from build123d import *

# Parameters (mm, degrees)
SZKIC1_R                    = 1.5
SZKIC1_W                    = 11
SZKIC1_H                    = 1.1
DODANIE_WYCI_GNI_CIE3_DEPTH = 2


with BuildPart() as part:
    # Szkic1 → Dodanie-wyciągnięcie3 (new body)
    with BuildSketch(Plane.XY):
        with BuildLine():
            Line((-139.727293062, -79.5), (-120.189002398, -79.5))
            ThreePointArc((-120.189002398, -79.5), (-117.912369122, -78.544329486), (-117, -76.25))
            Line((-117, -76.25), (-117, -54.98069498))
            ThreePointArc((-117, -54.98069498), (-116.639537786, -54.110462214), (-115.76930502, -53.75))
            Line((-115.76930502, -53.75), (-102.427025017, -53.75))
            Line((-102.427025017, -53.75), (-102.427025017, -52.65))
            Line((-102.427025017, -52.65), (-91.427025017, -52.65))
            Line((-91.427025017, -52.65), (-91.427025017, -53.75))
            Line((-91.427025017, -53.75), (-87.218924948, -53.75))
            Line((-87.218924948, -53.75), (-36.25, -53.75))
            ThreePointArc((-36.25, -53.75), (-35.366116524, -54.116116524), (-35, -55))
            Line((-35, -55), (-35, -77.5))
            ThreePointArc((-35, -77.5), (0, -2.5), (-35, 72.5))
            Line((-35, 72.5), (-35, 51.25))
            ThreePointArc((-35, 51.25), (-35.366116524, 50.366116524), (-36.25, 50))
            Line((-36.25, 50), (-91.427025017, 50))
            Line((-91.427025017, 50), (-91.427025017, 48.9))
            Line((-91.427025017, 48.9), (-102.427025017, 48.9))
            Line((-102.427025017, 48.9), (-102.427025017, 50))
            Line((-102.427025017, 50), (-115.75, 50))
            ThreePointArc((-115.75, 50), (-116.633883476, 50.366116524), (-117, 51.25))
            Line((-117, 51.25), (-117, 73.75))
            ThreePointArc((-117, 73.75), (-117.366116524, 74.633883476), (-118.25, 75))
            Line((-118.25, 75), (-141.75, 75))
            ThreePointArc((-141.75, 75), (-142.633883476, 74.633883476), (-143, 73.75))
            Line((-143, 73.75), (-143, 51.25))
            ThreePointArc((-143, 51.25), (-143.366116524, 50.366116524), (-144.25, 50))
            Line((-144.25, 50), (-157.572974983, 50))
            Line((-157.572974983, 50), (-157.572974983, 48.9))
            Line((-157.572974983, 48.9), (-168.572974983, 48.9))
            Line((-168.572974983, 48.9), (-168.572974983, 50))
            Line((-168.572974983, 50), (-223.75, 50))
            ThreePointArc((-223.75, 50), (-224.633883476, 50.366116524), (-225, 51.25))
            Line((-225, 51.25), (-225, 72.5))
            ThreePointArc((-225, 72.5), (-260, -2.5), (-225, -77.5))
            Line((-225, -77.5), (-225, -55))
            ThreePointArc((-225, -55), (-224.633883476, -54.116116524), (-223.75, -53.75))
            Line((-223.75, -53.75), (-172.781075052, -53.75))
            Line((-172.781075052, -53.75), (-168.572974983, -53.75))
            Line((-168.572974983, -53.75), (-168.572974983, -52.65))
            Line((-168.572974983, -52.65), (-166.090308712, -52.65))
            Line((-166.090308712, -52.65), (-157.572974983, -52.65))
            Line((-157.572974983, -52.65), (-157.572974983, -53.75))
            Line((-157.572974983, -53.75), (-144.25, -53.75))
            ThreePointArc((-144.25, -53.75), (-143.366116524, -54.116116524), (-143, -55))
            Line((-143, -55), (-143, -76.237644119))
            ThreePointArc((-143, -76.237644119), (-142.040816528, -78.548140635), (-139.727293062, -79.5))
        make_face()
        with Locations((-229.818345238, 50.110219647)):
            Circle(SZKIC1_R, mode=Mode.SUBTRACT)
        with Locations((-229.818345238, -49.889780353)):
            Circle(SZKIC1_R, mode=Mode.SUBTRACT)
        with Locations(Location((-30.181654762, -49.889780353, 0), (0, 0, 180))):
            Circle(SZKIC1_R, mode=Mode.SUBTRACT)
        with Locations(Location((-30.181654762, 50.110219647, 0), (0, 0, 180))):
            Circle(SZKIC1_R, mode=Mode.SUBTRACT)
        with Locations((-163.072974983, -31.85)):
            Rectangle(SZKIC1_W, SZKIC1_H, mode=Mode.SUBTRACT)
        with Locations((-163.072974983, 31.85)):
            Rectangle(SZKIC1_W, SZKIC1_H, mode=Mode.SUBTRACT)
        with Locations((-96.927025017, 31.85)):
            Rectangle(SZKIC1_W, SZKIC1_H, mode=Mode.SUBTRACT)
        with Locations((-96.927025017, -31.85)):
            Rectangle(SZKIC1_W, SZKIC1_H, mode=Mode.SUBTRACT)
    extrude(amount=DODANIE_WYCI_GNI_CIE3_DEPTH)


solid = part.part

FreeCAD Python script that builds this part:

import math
import FreeCAD as App
import Part
import Sketcher

V = App.Vector
Q = App.Units.Quantity


def add_polygon(sketch, points):
    """Adds a closed chain of lines whose ends are joined by coincident constraints."""
    first, n = sketch.GeometryCount, len(points)
    for a, b in zip(points, points[1:] + points[:1]):
        sketch.addGeometry(Part.LineSegment(App.Vector(*a, 0), App.Vector(*b, 0)), False)
    for i in range(n):
        sketch.addConstraint(Sketcher.Constraint("Coincident", first + i, 2, first + (i + 1) % n, 1))

doc = App.newDocument("Part")
body = doc.addObject("PartDesign::Body", "Body")

sketch1 = body.newObject("Sketcher::SketchObject", "Sketch")
sketch1.AttachmentSupport = (doc.getObject("XY_Plane"), [""])
sketch1.MapMode = "FlatFace"
sketch1.addGeometry(Part.LineSegment(V(-139.7, -79.5, 0), V(-120.2, -79.5, 0)), False)
sketch1.addGeometry(Part.ArcOfCircle(Part.Circle(V(-120.2, -76.3, 0), V(0, 0, 1), 3.2), math.radians(-90), math.radians(1)), False)
sketch1.addGeometry(Part.LineSegment(V(-117, -76.2, 0), V(-117, -55, 0)), False)
sketch1.addGeometry(Part.ArcOfCircle(Part.Circle(V(-115.8, -55, 0), V(0, 0, 1), 1.2), math.radians(90), math.radians(180)), False)
sketch1.addGeometry(Part.LineSegment(V(-115.8, -53.8, 0), V(-102.4, -53.8, 0)), False)
sketch1.addGeometry(Part.LineSegment(V(-102.4, -53.8, 0), V(-102.4, -52.6, 0)), False)
sketch1.addGeometry(Part.LineSegment(V(-102.4, -52.6, 0), V(-91.4, -52.6, 0)), False)
sketch1.addGeometry(Part.LineSegment(V(-91.4, -52.6, 0), V(-91.4, -53.8, 0)), False)
sketch1.addGeometry(Part.LineSegment(V(-91.4, -53.8, 0), V(-36.2, -53.8, 0)), False)
sketch1.addGeometry(Part.ArcOfCircle(Part.Circle(V(-36.3, -55, 0), V(0, 0, 1), 1.3), math.radians(0), math.radians(90)), False)
sketch1.addGeometry(Part.LineSegment(V(-35, -55, 0), V(-35, -77.5, 0)), False)
sketch1.addGeometry(Part.ArcOfCircle(Part.Circle(V(-97.9, -2.5, 0), V(0, 0, 1), 97.9), math.radians(-50), math.radians(50)), False)
sketch1.addGeometry(Part.LineSegment(V(-35, 72.5, 0), V(-35, 51.2, 0)), False)
sketch1.addGeometry(Part.ArcOfCircle(Part.Circle(V(-36.3, 51.3, 0), V(0, 0, 1), 1.3), math.radians(-90), math.radians(0)), False)
sketch1.addGeometry(Part.LineSegment(V(-36.2, 50, 0), V(-91.4, 50, 0)), False)
sketch1.addGeometry(Part.LineSegment(V(-91.4, 50, 0), V(-91.4, 48.9, 0)), False)
sketch1.addGeometry(Part.LineSegment(V(-91.4, 48.9, 0), V(-102.4, 48.9, 0)), False)
sketch1.addGeometry(Part.LineSegment(V(-102.4, 48.9, 0), V(-102.4, 50, 0)), False)
sketch1.addGeometry(Part.LineSegment(V(-102.4, 50, 0), V(-115.8, 50, 0)), False)
sketch1.addGeometry(Part.ArcOfCircle(Part.Circle(V(-115.7, 51.3, 0), V(0, 0, 1), 1.3), math.radians(-180), math.radians(-90)), False)
sketch1.addGeometry(Part.LineSegment(V(-117, 51.2, 0), V(-117, 73.8, 0)), False)
sketch1.addGeometry(Part.ArcOfCircle(Part.Circle(V(-118.3, 73.7, 0), V(0, 0, 1), 1.3), math.radians(0), math.radians(90)), False)
sketch1.addGeometry(Part.LineSegment(V(-118.2, 75, 0), V(-141.8, 75, 0)), False)
sketch1.addGeometry(Part.ArcOfCircle(Part.Circle(V(-141.7, 73.7, 0), V(0, 0, 1), 1.3), math.radians(90), math.radians(180)), False)
sketch1.addGeometry(Part.LineSegment(V(-143, 73.8, 0), V(-143, 51.2, 0)), False)
sketch1.addGeometry(Part.ArcOfCircle(Part.Circle(V(-144.3, 51.3, 0), V(0, 0, 1), 1.3), math.radians(-90), math.radians(0)), False)
sketch1.addGeometry(Part.LineSegment(V(-144.2, 50, 0), V(-157.6, 50, 0)), False)
sketch1.addGeometry(Part.LineSegment(V(-157.6, 50, 0), V(-157.6, 48.9, 0)), False)
sketch1.addGeometry(Part.LineSegment(V(-157.6, 48.9, 0), V(-168.6, 48.9, 0)), False)
sketch1.addGeometry(Part.LineSegment(V(-168.6, 48.9, 0), V(-168.6, 50, 0)), False)
sketch1.addGeometry(Part.LineSegment(V(-168.6, 50, 0), V(-223.8, 50, 0)), False)
sketch1.addGeometry(Part.ArcOfCircle(Part.Circle(V(-223.7, 51.3, 0), V(0, 0, 1), 1.3), math.radians(-180), math.radians(-90)), False)
sketch1.addGeometry(Part.LineSegment(V(-225, 51.2, 0), V(-225, 72.5, 0)), False)
sketch1.addGeometry(Part.ArcOfCircle(Part.Circle(V(-162.1, -2.5, 0), V(0, 0, 1), 97.9), math.radians(130), math.radians(230)), False)
sketch1.addGeometry(Part.LineSegment(V(-225, -77.5, 0), V(-225, -55, 0)), False)
sketch1.addGeometry(Part.ArcOfCircle(Part.Circle(V(-223.7, -55, 0), V(0, 0, 1), 1.3), math.radians(90), math.radians(180)), False)
sketch1.addGeometry(Part.LineSegment(V(-223.8, -53.8, 0), V(-168.6, -53.8, 0)), False)
sketch1.addGeometry(Part.LineSegment(V(-168.6, -53.8, 0), V(-168.6, -52.6, 0)), False)
sketch1.addGeometry(Part.LineSegment(V(-168.6, -52.6, 0), V(-157.6, -52.6, 0)), False)
sketch1.addGeometry(Part.LineSegment(V(-157.6, -52.6, 0), V(-157.6, -53.8, 0)), False)
sketch1.addGeometry(Part.LineSegment(V(-157.6, -53.8, 0), V(-144.2, -53.8, 0)), False)
sketch1.addGeometry(Part.ArcOfCircle(Part.Circle(V(-144.3, -55, 0), V(0, 0, 1), 1.3), math.radians(0), math.radians(90)), False)
sketch1.addGeometry(Part.LineSegment(V(-143, -55, 0), V(-143, -76.2, 0)), False)
sketch1.addGeometry(Part.ArcOfCircle(Part.Circle(V(-139.7, -76.2, 0), V(0, 0, 1), 3.3), math.radians(180), math.radians(270)), False)
sketch1.addGeometry(Part.Circle(V(-229.8, -49.9, 0), V(0, 0, 1), 1.5), False)
add_polygon(sketch1, [(-157.6, -32.4), (-168.6, -32.4), (-168.6, -31.3), (-157.6, -31.3)])
add_polygon(sketch1, [(-91.4, -32.4), (-102.4, -32.4), (-102.4, -31.3), (-91.4, -31.3)])
sketch1.addGeometry(Part.Circle(V(-30.2, -49.9, 0), V(0, 0, 1), 1.5), False)
sketch1.addGeometry(Part.Circle(V(-229.8, 50.1, 0), V(0, 0, 1), 1.5), False)
add_polygon(sketch1, [(-157.6, 31.3), (-168.6, 31.3), (-168.6, 32.4), (-157.6, 32.4)])
add_polygon(sketch1, [(-91.4, 31.3), (-102.4, 31.3), (-102.4, 32.4), (-91.4, 32.4)])
sketch1.addGeometry(Part.Circle(V(-30.2, 50.1, 0), V(0, 0, 1), 1.5), False)
sketch1.addConstraint([
    Sketcher.Constraint("Tangent", 0, 2, 1, 1),
    Sketcher.Constraint("Coincident", 1, 2, 2, 1),
    Sketcher.Constraint("Tangent", 2, 2, 3, 2),
    Sketcher.Constraint("Tangent", 3, 1, 4, 1),
    Sketcher.Constraint("Coincident", 4, 2, 5, 1),
    Sketcher.Constraint("Coincident", 5, 2, 6, 1),
    Sketcher.Constraint("Coincident", 6, 2, 7, 1),
    Sketcher.Constraint("Coincident", 7, 2, 8, 1),
    Sketcher.Constraint("Tangent", 8, 2, 9, 2),
    Sketcher.Constraint("Tangent", 9, 1, 10, 1),
    Sketcher.Constraint("Coincident", 10, 2, 11, 1),
    Sketcher.Constraint("Coincident", 11, 2, 12, 1),
    Sketcher.Constraint("Tangent", 12, 2, 13, 2),
    Sketcher.Constraint("Tangent", 13, 1, 14, 1),
    Sketcher.Constraint("Coincident", 14, 2, 15, 1),
    Sketcher.Constraint("Coincident", 15, 2, 16, 1),
    Sketcher.Constraint("Coincident", 16, 2, 17, 1),
    Sketcher.Constraint("Coincident", 17, 2, 18, 1),
    Sketcher.Constraint("Tangent", 18, 2, 19, 2),
    Sketcher.Constraint("Tangent", 19, 1, 20, 1),
    Sketcher.Constraint("Tangent", 20, 2, 21, 1),
    Sketcher.Constraint("Tangent", 21, 2, 22, 1),
    Sketcher.Constraint("Tangent", 22, 2, 23, 1),
    Sketcher.Constraint("Tangent", 23, 2, 24, 1),
    Sketcher.Constraint("Tangent", 24, 2, 25, 2),
    Sketcher.Constraint("Tangent", 25, 1, 26, 1),
    Sketcher.Constraint("Coincident", 26, 2, 27, 1),
    Sketcher.Constraint("Coincident", 27, 2, 28, 1),
    Sketcher.Constraint("Coincident", 28, 2, 29, 1),
    Sketcher.Constraint("Coincident", 29, 2, 30, 1),
    Sketcher.Constraint("Tangent", 30, 2, 31, 2),
    Sketcher.Constraint("Tangent", 31, 1, 32, 1),
    Sketcher.Constraint("Coincident", 32, 2, 33, 1),
    Sketcher.Constraint("Coincident", 33, 2, 34, 1),
    Sketcher.Constraint("Tangent", 34, 2, 35, 2),
    Sketcher.Constraint("Tangent", 35, 1, 36, 1),
    Sketcher.Constraint("Coincident", 36, 2, 37, 1),
    Sketcher.Constraint("Coincident", 37, 2, 38, 1),
    Sketcher.Constraint("Coincident", 38, 2, 39, 1),
    Sketcher.Constraint("Coincident", 39, 2, 40, 1),
    Sketcher.Constraint("Tangent", 40, 2, 41, 2),
    Sketcher.Constraint("Tangent", 41, 1, 42, 1),
    Sketcher.Constraint("Tangent", 42, 2, 43, 1),
    Sketcher.Constraint("Coincident", 43, 2, 0, 1),
    Sketcher.Constraint("Horizontal", 0),
    Sketcher.Constraint("Vertical", 2),
    Sketcher.Constraint("Horizontal", 4),
    Sketcher.Constraint("Vertical", 5),
    Sketcher.Constraint("Horizontal", 6),
    Sketcher.Constraint("Vertical", 7),
    Sketcher.Constraint("Horizontal", 8),
    Sketcher.Constraint("Vertical", 10),
    Sketcher.Constraint("Vertical", 12),
    Sketcher.Constraint("Horizontal", 14),
    Sketcher.Constraint("Vertical", 15),
    Sketcher.Constraint("Horizontal", 16),
    Sketcher.Constraint("Vertical", 17),
    Sketcher.Constraint("Horizontal", 18),
    Sketcher.Constraint("Vertical", 20),
    Sketcher.Constraint("Horizontal", 22),
    Sketcher.Constraint("Vertical", 24),
    Sketcher.Constraint("Horizontal", 26),
    Sketcher.Constraint("Vertical", 27),
    Sketcher.Constraint("Horizontal", 28),
    Sketcher.Constraint("Vertical", 29),
    Sketcher.Constraint("Horizontal", 30),
    Sketcher.Constraint("Vertical", 32),
    Sketcher.Constraint("Vertical", 34),
    Sketcher.Constraint("Horizontal", 36),
    Sketcher.Constraint("Vertical", 37),
    Sketcher.Constraint("Horizontal", 38),
    Sketcher.Constraint("Vertical", 39),
    Sketcher.Constraint("Horizontal", 40),
    Sketcher.Constraint("Vertical", 42),
    Sketcher.Constraint("Horizontal", 45),
    Sketcher.Constraint("Vertical", 46),
    Sketcher.Constraint("Horizontal", 47),
    Sketcher.Constraint("Vertical", 48),
    Sketcher.Constraint("Horizontal", 49),
    Sketcher.Constraint("Vertical", 50),
    Sketcher.Constraint("Horizontal", 51),
    Sketcher.Constraint("Vertical", 52),
    Sketcher.Constraint("Horizontal", 55),
    Sketcher.Constraint("Vertical", 56),
    Sketcher.Constraint("Horizontal", 57),
    Sketcher.Constraint("Vertical", 58),
    Sketcher.Constraint("Horizontal", 59),
    Sketcher.Constraint("Vertical", 60),
    Sketcher.Constraint("Horizontal", 61),
    Sketcher.Constraint("Vertical", 62),
    Sketcher.Constraint("Equal", 9, 13),
    Sketcher.Constraint("Equal", 13, 19),
    Sketcher.Constraint("Equal", 19, 21),
    Sketcher.Constraint("Equal", 21, 23),
    Sketcher.Constraint("Equal", 23, 25),
    Sketcher.Constraint("Equal", 25, 31),
    Sketcher.Constraint("Equal", 11, 33),
    Sketcher.Constraint("Equal", 31, 35),
    Sketcher.Constraint("Equal", 35, 41),
    Sketcher.Constraint("Equal", 44, 53),
    Sketcher.Constraint("Equal", 53, 54),
    Sketcher.Constraint("Equal", 54, 63),
    Sketcher.Constraint("Symmetric", 46, 2, 55, 2, -1),
    Sketcher.Constraint("Symmetric", 48, 2, 57, 2, -1),
    Sketcher.Constraint("Symmetric", 50, 2, 59, 2, -1),
    Sketcher.Constraint("Symmetric", 52, 2, 61, 2, -1),
    Sketcher.Constraint("Horizontal", 13, 3, 19, 3),
    Sketcher.Constraint("Horizontal", 19, 3, 25, 3),
    Sketcher.Constraint("Horizontal", 25, 3, 31, 3),
    Sketcher.Constraint("Horizontal", 11, 3, 33, 3),
    Sketcher.Constraint("Horizontal", 9, 3, 35, 3),
    Sketcher.Constraint("Horizontal", 35, 3, 41, 3),
    Sketcher.Constraint("Horizontal", 44, 3, 53, 3),
    Sketcher.Constraint("Horizontal", 54, 3, 63, 3),
    Sketcher.Constraint("Horizontal", 4, 2, 7, 2),
    Sketcher.Constraint("Horizontal", 16, 2, 27, 2),
    Sketcher.Constraint("Horizontal", 11, 2, 32, 2),
    Sketcher.Constraint("Horizontal", 10, 2, 33, 2),
    Sketcher.Constraint("Horizontal", 6, 2, 37, 2),
    Sketcher.Constraint("Horizontal", 48, 2, 49, 2),
    Sketcher.Constraint("Horizontal", 47, 2, 50, 2),
    Sketcher.Constraint("Vertical", 9, 3, 13, 3),
    Sketcher.Constraint("Vertical", 25, 3, 41, 3),
    Sketcher.Constraint("Vertical", 44, 3, 54, 3),
    Sketcher.Constraint("Vertical", 53, 3, 63, 3),
    Sketcher.Constraint("Vertical", 7, 2, 14, 2),
    Sketcher.Constraint("Vertical", 5, 2, 16, 2),
    Sketcher.Constraint("Vertical", 2, 2, 19, 1),
    Sketcher.Constraint("Vertical", 29, 2, 36, 2),
    Sketcher.Constraint("Vertical", 27, 2, 38, 2),
    Sketcher.Constraint("Vertical", 37, 2, 45, 2),
    Sketcher.Constraint("Vertical", 39, 2, 47, 2),
    Sketcher.Constraint("Vertical", 17, 2, 49, 2),
    Sketcher.Constraint("Vertical", 15, 2, 51, 2),
    Sketcher.Constraint("Equal", 18, 26),
    Sketcher.Constraint("Equal", 16, 28),
    Sketcher.Constraint("Equal", 14, 30),
    Sketcher.Constraint("Equal", 7, 15),
    Sketcher.Constraint("Equal", 10, 20),
    Sketcher.Constraint("Equal", 39, 46),
    Sketcher.Constraint("Diameter", 44, Q("3 mm")),
    Sketcher.Constraint("DistanceX", 6, 1, 6, 2, Q("11 mm")),
    Sketcher.Constraint("Radius", 9, Q("1.25 mm")),
    Sketcher.Constraint("DistanceX", 22, 2, 22, 1, Q("23.5 mm")),
    Sketcher.Constraint("DistanceY", 5, 1, 5, 2, Q("1.1 mm")),
    Sketcher.Constraint("DistanceY", 10, 2, 10, 1, Q("22.5 mm")),
    Sketcher.Constraint("DistanceY", 9, 3, -1, 1, Q("55 mm")),
    Sketcher.Constraint("DistanceX", 1, 2, -1, 1, Q("117 mm")),
    Sketcher.Constraint("DistanceX", 9, 1, -1, 1, Q("35 mm")),
    Sketcher.Constraint("DistanceY", -1, 1, 13, 1, Q("50 mm")),
    Sketcher.Constraint("DistanceY", 12, 2, 12, 1, Q("21.25 mm")),
    Sketcher.Constraint("DistanceY", 0, 2, -1, 1, Q("79.5 mm")),
    Sketcher.Constraint("DistanceY", 45, 2, -1, 1, Q("32.4 mm")),
    Sketcher.Constraint("DistanceY", 1, 2, -1, 1, Q("76.25 mm")),
    Sketcher.Constraint("Radius", 1, Q("3.189575 mm")),
    Sketcher.Constraint("Radius", 3, Q("1.230695 mm")),
    Sketcher.Constraint("Radius", 11, Q("97.857143 mm")),
    Sketcher.Constraint("Radius", 43, Q("3.262372 mm")),
    Sketcher.Constraint("DistanceX", 0, 1, 0, 2, Q("19.538291 mm")),
    Sketcher.Constraint("DistanceX", 4, 1, 4, 2, Q("13.34228 mm")),
    Sketcher.Constraint("DistanceY", 44, 3, -1, 1, Q("49.88978 mm")),
    Sketcher.Constraint("DistanceY", -1, 1, 54, 3, Q("50.11022 mm")),
    Sketcher.Constraint("DistanceX", 44, 3, -1, 1, Q("229.818345 mm")),
    Sketcher.Constraint("DistanceX", 53, 3, -1, 1, Q("30.181655 mm")),
])
pad1 = body.newObject("PartDesign::Pad", "Pad")
pad1.Profile = sketch1
pad1.Length = 2

doc.recompute()
